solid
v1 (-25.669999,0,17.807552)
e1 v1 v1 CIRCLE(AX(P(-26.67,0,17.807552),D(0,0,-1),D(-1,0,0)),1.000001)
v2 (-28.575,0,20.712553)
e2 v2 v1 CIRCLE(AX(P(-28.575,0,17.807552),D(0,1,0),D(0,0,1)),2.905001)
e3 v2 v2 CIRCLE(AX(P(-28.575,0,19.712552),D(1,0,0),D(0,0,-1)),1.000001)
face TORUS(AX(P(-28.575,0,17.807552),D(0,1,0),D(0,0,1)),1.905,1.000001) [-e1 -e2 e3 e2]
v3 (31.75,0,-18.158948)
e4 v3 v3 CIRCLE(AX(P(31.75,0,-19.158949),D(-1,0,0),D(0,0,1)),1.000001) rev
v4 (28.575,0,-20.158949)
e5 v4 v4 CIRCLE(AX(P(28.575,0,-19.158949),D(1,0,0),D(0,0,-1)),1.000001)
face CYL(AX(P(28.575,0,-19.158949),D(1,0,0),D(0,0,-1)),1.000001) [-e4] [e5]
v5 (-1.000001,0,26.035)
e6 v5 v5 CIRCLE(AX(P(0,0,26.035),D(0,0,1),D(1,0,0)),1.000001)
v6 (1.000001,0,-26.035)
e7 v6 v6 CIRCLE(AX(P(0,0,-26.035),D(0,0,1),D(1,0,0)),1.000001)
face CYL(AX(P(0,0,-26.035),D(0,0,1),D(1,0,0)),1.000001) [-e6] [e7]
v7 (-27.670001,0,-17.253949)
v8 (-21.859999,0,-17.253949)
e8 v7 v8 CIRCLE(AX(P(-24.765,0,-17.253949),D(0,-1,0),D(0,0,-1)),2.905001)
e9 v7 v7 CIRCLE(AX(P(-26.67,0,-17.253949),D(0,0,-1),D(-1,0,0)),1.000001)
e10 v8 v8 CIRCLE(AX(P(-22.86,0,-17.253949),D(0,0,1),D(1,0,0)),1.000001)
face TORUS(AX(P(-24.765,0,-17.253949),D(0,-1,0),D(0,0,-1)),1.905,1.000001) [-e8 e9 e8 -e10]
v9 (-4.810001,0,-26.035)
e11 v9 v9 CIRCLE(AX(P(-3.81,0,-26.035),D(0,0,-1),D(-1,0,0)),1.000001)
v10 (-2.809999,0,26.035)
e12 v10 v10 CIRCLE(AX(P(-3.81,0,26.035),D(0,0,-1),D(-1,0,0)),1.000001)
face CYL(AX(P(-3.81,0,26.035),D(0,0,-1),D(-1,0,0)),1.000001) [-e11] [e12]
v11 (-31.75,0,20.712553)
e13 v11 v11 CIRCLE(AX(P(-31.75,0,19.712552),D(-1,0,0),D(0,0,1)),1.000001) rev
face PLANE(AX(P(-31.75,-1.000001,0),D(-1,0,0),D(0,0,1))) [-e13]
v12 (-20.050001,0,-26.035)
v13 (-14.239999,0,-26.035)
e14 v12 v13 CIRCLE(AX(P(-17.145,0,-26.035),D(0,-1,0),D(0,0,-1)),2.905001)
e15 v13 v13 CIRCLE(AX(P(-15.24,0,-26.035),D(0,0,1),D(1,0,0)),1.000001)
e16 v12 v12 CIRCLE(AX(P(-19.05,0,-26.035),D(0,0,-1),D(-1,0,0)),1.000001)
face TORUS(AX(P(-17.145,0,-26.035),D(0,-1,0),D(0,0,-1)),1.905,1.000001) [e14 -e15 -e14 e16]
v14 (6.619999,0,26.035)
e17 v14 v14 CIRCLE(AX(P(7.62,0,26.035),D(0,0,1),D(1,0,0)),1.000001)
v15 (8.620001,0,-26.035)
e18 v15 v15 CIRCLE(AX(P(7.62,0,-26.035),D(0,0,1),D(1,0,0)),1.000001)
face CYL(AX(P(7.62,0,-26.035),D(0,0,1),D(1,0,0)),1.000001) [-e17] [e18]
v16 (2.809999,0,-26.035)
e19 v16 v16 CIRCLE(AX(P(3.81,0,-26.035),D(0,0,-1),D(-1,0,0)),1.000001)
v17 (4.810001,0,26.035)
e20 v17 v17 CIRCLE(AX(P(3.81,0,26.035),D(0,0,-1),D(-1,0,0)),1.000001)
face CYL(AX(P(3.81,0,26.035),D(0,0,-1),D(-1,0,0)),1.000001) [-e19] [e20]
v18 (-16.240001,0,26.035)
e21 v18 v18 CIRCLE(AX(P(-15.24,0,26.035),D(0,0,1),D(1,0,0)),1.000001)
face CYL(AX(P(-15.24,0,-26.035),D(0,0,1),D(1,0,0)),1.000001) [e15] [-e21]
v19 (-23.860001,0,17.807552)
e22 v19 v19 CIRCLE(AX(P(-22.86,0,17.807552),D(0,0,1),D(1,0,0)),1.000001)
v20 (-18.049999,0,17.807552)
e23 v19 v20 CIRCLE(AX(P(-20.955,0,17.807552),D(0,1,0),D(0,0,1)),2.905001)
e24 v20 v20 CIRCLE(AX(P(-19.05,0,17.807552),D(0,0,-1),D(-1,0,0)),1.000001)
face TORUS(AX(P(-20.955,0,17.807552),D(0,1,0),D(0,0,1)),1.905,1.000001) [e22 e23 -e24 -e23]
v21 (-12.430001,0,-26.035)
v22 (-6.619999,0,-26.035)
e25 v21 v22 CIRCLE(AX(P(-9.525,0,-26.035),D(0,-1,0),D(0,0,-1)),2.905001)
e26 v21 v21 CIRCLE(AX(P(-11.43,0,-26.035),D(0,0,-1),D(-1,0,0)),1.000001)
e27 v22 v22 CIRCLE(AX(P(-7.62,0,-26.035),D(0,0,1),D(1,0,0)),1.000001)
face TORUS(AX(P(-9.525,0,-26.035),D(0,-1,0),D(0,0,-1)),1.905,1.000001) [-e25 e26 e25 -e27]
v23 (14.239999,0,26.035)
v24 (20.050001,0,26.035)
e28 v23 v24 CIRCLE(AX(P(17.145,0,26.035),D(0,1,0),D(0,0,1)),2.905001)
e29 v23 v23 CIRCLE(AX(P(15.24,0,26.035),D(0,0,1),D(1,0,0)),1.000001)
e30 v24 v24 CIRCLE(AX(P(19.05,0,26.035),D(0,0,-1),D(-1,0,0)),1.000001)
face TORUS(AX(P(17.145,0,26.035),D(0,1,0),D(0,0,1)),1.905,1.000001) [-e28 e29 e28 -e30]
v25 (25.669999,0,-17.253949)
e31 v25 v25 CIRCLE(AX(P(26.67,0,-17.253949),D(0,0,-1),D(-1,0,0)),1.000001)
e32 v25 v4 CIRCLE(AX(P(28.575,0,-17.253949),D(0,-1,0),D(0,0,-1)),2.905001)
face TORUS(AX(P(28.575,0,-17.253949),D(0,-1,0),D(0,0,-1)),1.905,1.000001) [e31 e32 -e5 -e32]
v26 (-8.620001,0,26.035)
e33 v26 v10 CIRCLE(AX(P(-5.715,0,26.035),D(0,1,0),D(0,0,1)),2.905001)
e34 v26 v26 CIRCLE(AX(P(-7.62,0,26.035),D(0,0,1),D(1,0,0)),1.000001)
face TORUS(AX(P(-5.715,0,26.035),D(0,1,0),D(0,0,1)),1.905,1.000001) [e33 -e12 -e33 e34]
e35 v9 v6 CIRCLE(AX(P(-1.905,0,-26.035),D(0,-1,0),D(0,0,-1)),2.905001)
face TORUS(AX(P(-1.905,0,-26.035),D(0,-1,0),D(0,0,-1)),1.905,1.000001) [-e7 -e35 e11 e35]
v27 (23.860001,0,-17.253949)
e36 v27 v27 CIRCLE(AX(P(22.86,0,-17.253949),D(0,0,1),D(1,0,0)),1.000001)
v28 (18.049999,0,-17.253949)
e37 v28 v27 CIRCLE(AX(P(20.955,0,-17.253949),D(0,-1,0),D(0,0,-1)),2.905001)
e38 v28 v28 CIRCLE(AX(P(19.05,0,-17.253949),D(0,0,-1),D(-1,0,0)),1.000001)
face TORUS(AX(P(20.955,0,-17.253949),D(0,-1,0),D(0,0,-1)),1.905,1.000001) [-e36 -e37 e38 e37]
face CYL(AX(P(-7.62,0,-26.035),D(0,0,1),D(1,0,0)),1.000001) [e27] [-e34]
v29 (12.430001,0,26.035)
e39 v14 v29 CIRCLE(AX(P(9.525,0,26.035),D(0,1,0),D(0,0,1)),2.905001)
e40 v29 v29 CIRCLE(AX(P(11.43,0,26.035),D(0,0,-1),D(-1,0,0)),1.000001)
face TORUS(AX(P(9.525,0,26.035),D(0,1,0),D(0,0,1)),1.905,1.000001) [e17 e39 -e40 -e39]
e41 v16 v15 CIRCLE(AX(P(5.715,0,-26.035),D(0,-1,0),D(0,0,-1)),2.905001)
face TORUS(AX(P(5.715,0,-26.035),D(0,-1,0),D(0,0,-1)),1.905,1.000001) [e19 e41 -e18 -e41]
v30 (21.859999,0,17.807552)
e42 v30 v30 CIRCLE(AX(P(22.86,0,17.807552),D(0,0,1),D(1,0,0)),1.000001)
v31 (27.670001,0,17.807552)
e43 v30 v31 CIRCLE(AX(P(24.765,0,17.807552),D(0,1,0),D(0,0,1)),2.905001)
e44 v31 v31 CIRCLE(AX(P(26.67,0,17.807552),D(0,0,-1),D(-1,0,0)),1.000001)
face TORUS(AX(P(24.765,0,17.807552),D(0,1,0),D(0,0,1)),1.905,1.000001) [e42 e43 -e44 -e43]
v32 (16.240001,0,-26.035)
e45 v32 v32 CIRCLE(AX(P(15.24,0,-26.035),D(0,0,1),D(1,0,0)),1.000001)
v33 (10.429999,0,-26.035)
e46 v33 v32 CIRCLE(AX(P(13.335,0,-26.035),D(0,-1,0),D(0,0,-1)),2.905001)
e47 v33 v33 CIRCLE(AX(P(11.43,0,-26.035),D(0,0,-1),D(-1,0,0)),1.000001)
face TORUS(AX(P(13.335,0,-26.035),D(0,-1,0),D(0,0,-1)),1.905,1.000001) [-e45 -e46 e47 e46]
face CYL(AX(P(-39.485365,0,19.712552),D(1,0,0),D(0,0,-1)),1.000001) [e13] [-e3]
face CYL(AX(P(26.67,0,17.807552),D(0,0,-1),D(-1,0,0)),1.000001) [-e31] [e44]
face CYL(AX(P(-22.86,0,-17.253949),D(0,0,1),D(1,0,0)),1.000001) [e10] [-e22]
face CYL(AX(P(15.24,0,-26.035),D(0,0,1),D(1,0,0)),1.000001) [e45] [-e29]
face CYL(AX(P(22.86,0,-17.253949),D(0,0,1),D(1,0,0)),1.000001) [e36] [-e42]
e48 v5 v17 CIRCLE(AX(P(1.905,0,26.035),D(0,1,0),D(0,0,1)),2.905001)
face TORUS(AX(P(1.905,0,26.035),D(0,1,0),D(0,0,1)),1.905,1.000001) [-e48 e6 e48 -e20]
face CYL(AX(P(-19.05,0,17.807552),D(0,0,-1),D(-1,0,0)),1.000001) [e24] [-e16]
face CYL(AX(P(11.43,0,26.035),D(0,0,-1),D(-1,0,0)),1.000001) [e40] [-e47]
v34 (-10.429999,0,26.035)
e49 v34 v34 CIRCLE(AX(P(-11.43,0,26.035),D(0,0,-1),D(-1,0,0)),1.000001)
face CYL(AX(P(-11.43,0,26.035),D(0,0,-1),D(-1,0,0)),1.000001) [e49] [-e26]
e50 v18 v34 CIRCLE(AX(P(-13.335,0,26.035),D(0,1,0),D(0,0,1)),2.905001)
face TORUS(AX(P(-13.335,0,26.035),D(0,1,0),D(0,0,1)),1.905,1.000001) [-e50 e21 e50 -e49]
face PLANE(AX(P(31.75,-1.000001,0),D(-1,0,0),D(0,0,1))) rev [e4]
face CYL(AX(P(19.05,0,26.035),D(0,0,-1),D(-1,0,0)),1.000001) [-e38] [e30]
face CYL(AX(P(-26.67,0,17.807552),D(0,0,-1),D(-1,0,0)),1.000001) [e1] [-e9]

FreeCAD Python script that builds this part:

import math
import FreeCAD as App
import Part
import Sketcher

V = App.Vector
Q = App.Units.Quantity

doc = App.newDocument("Part")
params = doc.addObject("Spreadsheet::Sheet", "Params")
for row, (alias, value) in enumerate([
    ("sketch2_radius", "0.075 in"),
    ("sketch2_height", "2.05 in"),
    ("sketch3_height", "2.5 in"),
], start=1):
    params.set(f"A{row}", alias)
    params.set(f"B{row}", "=" + value)
    params.setAlias(f"B{row}", alias)

body = doc.addObject("PartDesign::Body", "Body")

sketch1 = body.newObject("Sketcher::SketchObject", "Sketch")
sketch1.AttachmentSupport = (doc.getObject("XY_Plane"), [""])
sketch1.MapMode = "FlatFace"
sketch1.addGeometry(Part.Circle(V(0, 0, 0), V(0, 0, 1), 1), False)
sketch1.addConstraint([
    Sketcher.Constraint("Coincident", 0, 3, -1, 1),
    Sketcher.Constraint("Diameter", 0, 2.000001),
])

sketch2 = body.newObject("Sketcher::SketchObject", "Sketch001")
sketch2.AttachmentSupport = (doc.getObject("XZ_Plane"), [""])
sketch2.MapMode = "FlatFace"
sketch2.addGeometry([
    Part.LineSegment(V(39.1, -19.2, 0), V(28.6, -19.2, 0)),
    Part.ArcOfCircle(Part.Circle(V(28.6, -17.3, 0), V(0, 0, 1), 1.9), math.radians(-180), math.radians(-90)),
    Part.LineSegment(V(26.7, -17.3, 0), V(26.7, 17.8, 0)),
    Part.ArcOfCircle(Part.Circle(V(24.8, 17.8, 0), V(0, 0, 1), 1.9), math.radians(0), math.radians(180)),
    Part.LineSegment(V(22.9, 17.8, 0), V(22.9, -17.3, 0)),
    Part.ArcOfCircle(Part.Circle(V(21, -17.3, 0), V(0, 0, 1), 1.9), math.radians(180), math.radians(360)),
    Part.LineSegment(V(19.1, -17.3, 0), V(19.1, 26, 0)),
    Part.ArcOfCircle(Part.Circle(V(17.1, 26, 0), V(0, 0, 1), 1.9), math.radians(0), math.radians(180)),
    Part.LineSegment(V(15.2, 26, 0), V(15.2, -26, 0)),
    Part.ArcOfCircle(Part.Circle(V(13.3, -26, 0), V(0, 0, 1), 1.9), math.radians(180), math.radians(360)),
    Part.LineSegment(V(11.4, -26, 0), V(11.4, 26, 0)),
    Part.ArcOfCircle(Part.Circle(V(9.5, 26, 0), V(0, 0, 1), 1.9), math.radians(0), math.radians(180)),
    Part.LineSegment(V(7.6, 26, 0), V(7.6, -26, 0)),
    Part.ArcOfCircle(Part.Circle(V(5.7, -26, 0), V(0, 0, 1), 1.9), math.radians(180), math.radians(360)),
    Part.LineSegment(V(3.8, -26, 0), V(3.8, 26, 0)),
    Part.ArcOfCircle(Part.Circle(V(1.9, 26, 0), V(0, 0, 1), 1.9), math.radians(0), math.radians(180)),
    Part.LineSegment(V(0, 26, 0), V(0, -26, 0)),
    Part.ArcOfCircle(Part.Circle(V(-1.9, -26, 0), V(0, 0, 1), 1.9), math.radians(180), math.radians(360)),
    Part.LineSegment(V(-3.8, -26, 0), V(-3.8, 26, 0)),
    Part.ArcOfCircle(Part.Circle(V(-5.7, 26, 0), V(0, 0, 1), 1.9), math.radians(0), math.radians(180)),
    Part.LineSegment(V(-7.6, 26, 0), V(-7.6, -26, 0)),
    Part.ArcOfCircle(Part.Circle(V(-9.5, -26, 0), V(0, 0, 1), 1.9), math.radians(180), math.radians(360)),
    Part.LineSegment(V(-11.4, -26, 0), V(-11.4, 26, 0)),
    Part.ArcOfCircle(Part.Circle(V(-13.3, 26, 0), V(0, 0, 1), 1.9), math.radians(0), math.radians(180)),
    Part.LineSegment(V(-15.2, 26, 0), V(-15.2, -26, 0)),
    Part.ArcOfCircle(Part.Circle(V(-17.1, -26, 0), V(0, 0, 1), 1.9), math.radians(180), math.radians(360)),
    Part.LineSegment(V(-19.1, -26, 0), V(-19.1, 17.8, 0)),
    Part.ArcOfCircle(Part.Circle(V(-21, 17.8, 0), V(0, 0, 1), 1.9), math.radians(0), math.radians(180)),
    Part.LineSegment(V(-22.9, 17.8, 0), V(-22.9, -17.3, 0)),
    Part.ArcOfCircle(Part.Circle(V(-24.8, -17.3, 0), V(0, 0, 1), 1.9), math.radians(180), math.radians(360)),
    Part.LineSegment(V(-26.7, -17.3, 0), V(-26.7, 17.8, 0)),
    Part.ArcOfCircle(Part.Circle(V(-28.6, 17.8, 0), V(0, 0, 1), 1.9), math.radians(0), math.radians(90)),
    Part.LineSegment(V(-28.6, 19.7, 0), V(-39.5, 19.7, 0)),
], False)
sketch2.addConstraint([
    Sketcher.Constraint("Tangent", 0, 2, 1, 2),
    Sketcher.Constraint("Tangent", 1, 1, 2, 1),
    Sketcher.Constraint("Tangent", 2, 2, 3, 1),
    Sketcher.Constraint("Tangent", 3, 2, 4, 1),
    Sketcher.Constraint("Tangent", 4, 2, 5, 2),
    Sketcher.Constraint("Tangent", 5, 1, 6, 1),
    Sketcher.Constraint("Tangent", 6, 2, 7, 1),
    Sketcher.Constraint("Tangent", 7, 2, 8, 1),
    Sketcher.Constraint("Tangent", 8, 2, 9, 2),
    Sketcher.Constraint("Tangent", 9, 1, 10, 1),
    Sketcher.Constraint("Tangent", 10, 2, 11, 1),
    Sketcher.Constraint("Tangent", 11, 2, 12, 1),
    Sketcher.Constraint("Tangent", 12, 2, 13, 2),
    Sketcher.Constraint("Tangent", 13, 1, 14, 1),
    Sketcher.Constraint("Tangent", 14, 2, 15, 1),
    Sketcher.Constraint("Tangent", 15, 2, 16, 1),
    Sketcher.Constraint("Tangent", 16, 2, 17, 2),
    Sketcher.Constraint("Tangent", 17, 1, 18, 1),
    Sketcher.Constraint("Tangent", 18, 2, 19, 1),
    Sketcher.Constraint("Tangent", 19, 2, 20, 1),
    Sketcher.Constraint("Tangent", 20, 2, 21, 2),
    Sketcher.Constraint("Tangent", 21, 1, 22, 1),
    Sketcher.Constraint("Tangent", 22, 2, 23, 1),
    Sketcher.Constraint("Tangent", 23, 2, 24, 1),
    Sketcher.Constraint("Tangent", 24, 2, 25, 2),
    Sketcher.Constraint("Tangent", 25, 1, 26, 1),
    Sketcher.Constraint("Tangent", 26, 2, 27, 1),
    Sketcher.Constraint("Tangent", 27, 2, 28, 1),
    Sketcher.Constraint("Tangent", 28, 2, 29, 2),
    Sketcher.Constraint("Tangent", 29, 1, 30, 1),
    Sketcher.Constraint("Tangent", 30, 2, 31, 1),
    Sketcher.Constraint("Tangent", 31, 2, 32, 1),
    Sketcher.Constraint("Horizontal", 0),
    Sketcher.Constraint("Vertical", 2),
    Sketcher.Constraint("Vertical", 4),
    Sketcher.Constraint("Vertical", 6),
    Sketcher.Constraint("Vertical", 8),
    Sketcher.Constraint("Vertical", 10),
    Sketcher.Constraint("Vertical", 12),
    Sketcher.Constraint("Vertical", 14),
    Sketcher.Constraint("Vertical", 16),
    Sketcher.Constraint("Vertical", 18),
    Sketcher.Constraint("Vertical", 20),
    Sketcher.Constraint("Vertical", 22),
    Sketcher.Constraint("Vertical", 24),
    Sketcher.Constraint("Vertical", 26),
    Sketcher.Constraint("Vertical", 28),
    Sketcher.Constraint("Vertical", 30),
    Sketcher.Constraint("Horizontal", 32),
    Sketcher.Constraint("Equal", 1, 3),
    Sketcher.Constraint("Equal", 3, 5),
    Sketcher.Constraint("Equal", 5, 7),
    Sketcher.Constraint("Equal", 7, 9),
    Sketcher.Constraint("Equal", 9, 11),
    Sketcher.Constraint("Equal", 11, 13),
    Sketcher.Constraint("Equal", 13, 15),
    Sketcher.Constraint("Equal", 15, 17),
    Sketcher.Constraint("Equal", 17, 19),
    Sketcher.Constraint("Equal", 19, 21),
    Sketcher.Constraint("Equal", 21, 23),
    Sketcher.Constraint("Equal", 23, 25),
    Sketcher.Constraint("Equal", 25, 27),
    Sketcher.Constraint("Equal", 27, 29),
    Sketcher.Constraint("Equal", 29, 31),
    Sketcher.Constraint("Symmetric", 15, 3, 17, 3, -1, 1),
    Sketcher.Constraint("Horizontal", 1, 3, 5, 3),
    Sketcher.Constraint("Horizontal", 7, 3, 11, 3),
    Sketcher.Constraint("Horizontal", 9, 3, 13, 3),
    Sketcher.Constraint("Horizontal", 11, 3, 15, 3),
    Sketcher.Constraint("Horizontal", 13, 3, 17, 3),
    Sketcher.Constraint("Horizontal", 15, 3, 19, 3),
    Sketcher.Constraint("Horizontal", 17, 3, 21, 3),
    Sketcher.Constraint("Horizontal", 19, 3, 23, 3),
    Sketcher.Constraint("Horizontal", 21, 3, 25, 3),
    Sketcher.Constraint("Horizontal", 3, 3, 27, 3),
    Sketcher.Constraint("Horizontal", 5, 3, 29, 3),
    Sketcher.Constraint("Horizontal", 27, 3, 31, 3),
    Sketcher.Constraint("Radius", 1, Q("0.075 in")),
    Sketcher.Constraint("DistanceY", 8, 2, 8, 1, Q("2.05 in")),
    Sketcher.Constraint("DistanceY", 2, 1, 2, 2, 35.061501),
    Sketcher.Constraint("DistanceY", 6, 1, 6, 2, 43.288949),
    Sketcher.Constraint("DistanceX", 0, 2, 0, 1, 10.486358),
    Sketcher.Constraint("DistanceX", 32, 2, 32, 1, 10.910365),
])
sketch2.setExpression("Constraints[77]", "Params.sketch2_radius")
sketch2.setExpression("Constraints[78]", "Params.sketch2_height")
doc.recompute()

additivepipe = body.newObject("PartDesign::AdditivePipe", "AdditivePipe")
additivepipe.Profile = sketch1
additivepipe.Spine = (sketch2, ["Edge1", "Edge2", "Edge3", "Edge4", "Edge5", "Edge6", "Edge7", "Edge8", "Edge9", "Edge10", "Edge11", "Edge12", "Edge13", "Edge14", "Edge15", "Edge16", "Edge17", "Edge18", "Edge19", "Edge20", "Edge21", "Edge22", "Edge23", "Edge24", "Edge25", "Edge26", "Edge27", "Edge28", "Edge29", "Edge30", "Edge31", "Edge32", "Edge33"])

sketch3 = body.newObject("Sketcher::SketchObject", "Sketch002")
sketch3.AttachmentSupport = (doc.getObject("XZ_Plane"), [""])
sketch3.MapMode = "FlatFace"
sketch3.addGeometry([
    Part.LineSegment(V(-83, -32, 0), V(-83, 32, 0)),
    Part.LineSegment(V(-83, 32, 0), V(-32, 32, 0)),
    Part.LineSegment(V(-32, 32, 0), V(-32, -32, 0)),
    Part.LineSegment(V(-32, -32, 0), V(-83, -32, 0)),
    Part.LineSegment(V(32, -32, 0), V(32, 32, 0)),
    Part.LineSegment(V(32, 32, 0), V(106, 32, 0)),
    Part.LineSegment(V(106, 32, 0), V(106, -32, 0)),
    Part.LineSegment(V(106, -32, 0), V(32, -32, 0)),
], False)
sketch3.addConstraint([
    Sketcher.Constraint("Coincident", 0, 2, 1, 1),
    Sketcher.Constraint("Coincident", 1, 2, 2, 1),
    Sketcher.Constraint("Coincident", 2, 2, 3, 1),
    Sketcher.Constraint("Coincident", 3, 2, 0, 1),
    Sketcher.Constraint("Coincident", 4, 2, 5, 1),
    Sketcher.Constraint("Coincident", 5, 2, 6, 1),
    Sketcher.Constraint("Coincident", 6, 2, 7, 1),
    Sketcher.Constraint("Coincident", 7, 2, 4, 1),
    Sketcher.Constraint("Vertical", 0),
    Sketcher.Constraint("Horizontal", 1),
    Sketcher.Constraint("Vertical", 2),
    Sketcher.Constraint("Horizontal", 3),
    Sketcher.Constraint("Vertical", 4),
    Sketcher.Constraint("Horizontal", 5),
    Sketcher.Constraint("Vertical", 6),
    Sketcher.Constraint("Horizontal", 7),
    Sketcher.Constraint("Symmetric", 2, 2, 4, 2, -1, 1),
    Sketcher.Constraint("Horizontal", 1, 2, 4, 2),
    Sketcher.Constraint("Horizontal", 3, 2, 6, 2),
    Sketcher.Constraint("DistanceY", 0, 1, 0, 2, Q("2.5 in")),
    Sketcher.Constraint("DistanceX", 1, 2, 4, 2, Q("2.5 in")),
    Sketcher.Constraint("DistanceX", 5, 1, 5, 2, 73.766179),
    Sketcher.Constraint("DistanceX", 1, 1, 1, 2, 50.974684),
])
sketch3.setExpression("Constraints[19]", "Params.sketch3_height")
pocket1 = body.newObject("PartDesign::Pocket", "Pocket")
pocket1.Profile = sketch3
pocket1.Type = "ThroughAll"
pocket1.Midplane = True

doc.recompute()
